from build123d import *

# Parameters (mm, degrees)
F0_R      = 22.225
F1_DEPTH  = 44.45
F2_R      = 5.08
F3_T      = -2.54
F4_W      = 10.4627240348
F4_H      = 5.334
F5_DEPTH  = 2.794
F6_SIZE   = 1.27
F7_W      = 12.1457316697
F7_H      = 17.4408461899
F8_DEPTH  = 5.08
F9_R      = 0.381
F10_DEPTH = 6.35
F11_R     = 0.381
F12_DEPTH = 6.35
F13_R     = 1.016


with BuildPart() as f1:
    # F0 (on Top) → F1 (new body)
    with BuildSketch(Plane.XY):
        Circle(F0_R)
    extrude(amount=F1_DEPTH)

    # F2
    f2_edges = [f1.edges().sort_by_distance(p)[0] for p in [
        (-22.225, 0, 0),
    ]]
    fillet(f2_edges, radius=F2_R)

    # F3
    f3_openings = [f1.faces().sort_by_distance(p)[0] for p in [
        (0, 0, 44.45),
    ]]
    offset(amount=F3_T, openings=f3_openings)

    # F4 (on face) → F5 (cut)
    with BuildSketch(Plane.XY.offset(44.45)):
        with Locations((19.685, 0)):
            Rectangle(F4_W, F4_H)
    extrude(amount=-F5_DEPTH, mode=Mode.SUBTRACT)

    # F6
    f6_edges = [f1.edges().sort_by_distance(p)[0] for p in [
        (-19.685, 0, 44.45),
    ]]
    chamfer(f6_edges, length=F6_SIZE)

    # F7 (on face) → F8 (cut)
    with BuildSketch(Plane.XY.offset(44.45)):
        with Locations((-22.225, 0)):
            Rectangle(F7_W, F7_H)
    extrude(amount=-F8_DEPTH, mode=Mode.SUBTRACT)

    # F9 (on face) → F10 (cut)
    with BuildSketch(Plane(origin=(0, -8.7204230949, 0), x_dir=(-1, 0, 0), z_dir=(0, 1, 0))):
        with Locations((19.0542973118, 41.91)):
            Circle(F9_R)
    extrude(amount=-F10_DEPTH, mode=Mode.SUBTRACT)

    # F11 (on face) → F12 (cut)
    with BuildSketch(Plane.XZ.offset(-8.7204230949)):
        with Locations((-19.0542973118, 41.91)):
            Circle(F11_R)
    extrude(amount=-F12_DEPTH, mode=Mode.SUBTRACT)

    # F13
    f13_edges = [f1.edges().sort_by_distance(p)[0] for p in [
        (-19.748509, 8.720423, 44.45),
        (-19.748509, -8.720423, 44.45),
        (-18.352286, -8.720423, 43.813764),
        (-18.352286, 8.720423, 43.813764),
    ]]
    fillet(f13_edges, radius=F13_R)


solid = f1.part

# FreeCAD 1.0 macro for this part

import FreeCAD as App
import Part
import Sketcher

V = App.Vector
Q = App.Units.Quantity


def edges_at(feature, points):
    """Names of the edges that pass closest to the given points."""
    edges = feature.Shape.Edges
    near = lambda p: min(range(len(edges)), key=lambda i: edges[i].distToShape(Part.Vertex(*p))[0])
    return sorted({f"Edge{near(p) + 1}" for p in points})


def faces_at(feature, points):
    """Names of the faces that lie closest to the given points."""
    faces = feature.Shape.Faces
    near = lambda p: min(range(len(faces)), key=lambda i: faces[i].distToShape(Part.Vertex(*p))[0])
    return sorted({f"Face{near(p) + 1}" for p in points})

doc = App.newDocument("Part")
body = doc.addObject("PartDesign::Body", "Body")

# Sketch on XY plane
sketch1 = body.newObject("Sketcher::SketchObject", "Sketch")
sketch1.AttachmentSupport = (doc.getObject("XY_Plane"), [""])
sketch1.MapMode = "FlatFace"
sketch1.addGeometry(Part.Circle(V(0, 0, 0), V(0, 0, 1), 22), False)
sketch1.addConstraint([
    Sketcher.Constraint("Coincident", 0, 3, -1, 1),
    Sketcher.Constraint("Diameter", 0, Q("1.75 in")),
])
pad1 = body.newObject("PartDesign::Pad", "Pad")
pad1.Profile = sketch1
pad1.Length = Q("1.75 in")
doc.recompute()

fillet = body.newObject("PartDesign::Fillet", "Fillet")
fillet.Base = (pad1, edges_at(pad1, [(-22.225, 0, 0)]))
fillet.Radius = Q("0.2 in")
doc.recompute()

thickness = body.newObject("PartDesign::Thickness", "Thickness")
thickness.Base = (fillet, faces_at(fillet, [(0, 0, 44.45)]))
thickness.Value = Q("0.1 in")
thickness.Reversed = True
thickness.Join = "Arc"

# Sketch on XY plane
sketch2 = body.newObject("Sketcher::SketchObject", "Sketch001")
sketch2.AttachmentSupport = (doc.getObject("XY_Plane"), [""])
sketch2.MapMode = "FlatFace"
sketch2.AttachmentOffset = App.Placement(V(0, 0, 1.75 * 25.4), App.Rotation())
sketch2.addGeometry([
    Part.LineSegment(V(14, 3, 0), V(14, -3, 0)),
    Part.LineSegment(V(14, -3, 0), V(25, -3, 0)),
    Part.LineSegment(V(25, -3, 0), V(25, 3, 0)),
    Part.LineSegment(V(25, 3, 0), V(14, 3, 0)),
], False)
sketch2.addConstraint([
    Sketcher.Constraint("Coincident", 0, 2, 1, 1),
    Sketcher.Constraint("Coincident", 1, 2, 2, 1),
    Sketcher.Constraint("Coincident", 2, 2, 3, 1),
    Sketcher.Constraint("Coincident", 3, 2, 0, 1),
    Sketcher.Constraint("Vertical", 0),
    Sketcher.Constraint("Horizontal", 1),
    Sketcher.Constraint("Vertical", 2),
    Sketcher.Constraint("Horizontal", 3),
    Sketcher.Constraint("DistanceY", 0, 2, 0, 1, Q("0.21 in")),
    Sketcher.Constraint("DistanceY", 0, 2, -1, 1, Q("0.105 in")),
    Sketcher.Constraint("DistanceX", 1, 1, 1, 2, 10.462724),
    Sketcher.Constraint("DistanceX", -1, 1, 0, 2, 14.453638),
])
pocket1 = body.newObject("PartDesign::Pocket", "Pocket")
pocket1.Profile = sketch2
pocket1.Length = Q("0.11 in")
doc.recompute()

chamfer = body.newObject("PartDesign::Chamfer", "Chamfer")
chamfer.Base = (pocket1, edges_at(pocket1, [(-19.685, 0, 44.45)]))
chamfer.Size = Q("0.05 in")

# Sketch on XY plane
sketch3 = body.newObject("Sketcher::SketchObject", "Sketch002")
sketch3.AttachmentSupport = (doc.getObject("XY_Plane"), [""])
sketch3.MapMode = "FlatFace"
sketch3.AttachmentOffset = App.Placement(V(0, 0, 1.75 * 25.4), App.Rotation())
sketch3.addGeometry([
    Part.LineSegment(V(-28, 9, 0), V(-28, -9, 0)),
    Part.LineSegment(V(-28, -9, 0), V(-16, -9, 0)),
    Part.LineSegment(V(-16, -9, 0), V(-16, 9, 0)),
    Part.LineSegment(V(-16, 9, 0), V(-28, 9, 0)),
], False)
sketch3.addConstraint([
    Sketcher.Constraint("Coincident", 0, 2, 1, 1),
    Sketcher.Constraint("Coincident", 1, 2, 2, 1),
    Sketcher.Constraint("Coincident", 2, 2, 3, 1),
    Sketcher.Constraint("Coincident", 3, 2, 0, 1),
    Sketcher.Constraint("Vertical", 0),
    Sketcher.Constraint("Horizontal", 1),
    Sketcher.Constraint("Vertical", 2),
    Sketcher.Constraint("Horizontal", 3),
    Sketcher.Constraint("DistanceX", 1, 1, 1, 2, 12.145732),
    Sketcher.Constraint("DistanceY", 0, 2, 0, 1, 17.440846),
    Sketcher.Constraint("DistanceX", 0, 2, -1, 1, 28.297866),
    Sketcher.Constraint("DistanceY", 0, 2, -1, 1, 8.720423),
])
pocket2 = body.newObject("PartDesign::Pocket", "Pocket001")
pocket2.Profile = sketch3
pocket2.Length = Q("0.2 in")

# Sketch on XZ plane
sketch4 = body.newObject("Sketcher::SketchObject", "Sketch003")
sketch4.AttachmentSupport = (doc.getObject("XZ_Plane"), [""])
sketch4.MapMode = "FlatFace"
sketch4.AttachmentOffset = App.Placement(V(0, 0, 8.720423), App.Rotation())
sketch4.addGeometry(Part.Circle(V(-19.05, 41.91, 0), V(0, 0, 1), 0.38), False)
sketch4.addConstraint([
    Sketcher.Constraint("Diameter", 0, Q("0.03 in")),
    Sketcher.Constraint("DistanceY", -1, 1, 0, 3, Q("1.65 in")),
    Sketcher.Constraint("DistanceX", 0, 3, -1, 1, 19.054297),
])
pocket3 = body.newObject("PartDesign::Pocket", "Pocket002")
pocket3.Profile = sketch4
pocket3.Length = Q("0.25 in")
pocket3.Reversed = True

# Sketch on XZ plane
sketch5 = body.newObject("Sketcher::SketchObject", "Sketch004")
sketch5.AttachmentSupport = (doc.getObject("XZ_Plane"), [""])
sketch5.MapMode = "FlatFace"
sketch5.AttachmentOffset = App.Placement(V(0, 0, -8.720423), App.Rotation())
sketch5.addGeometry(Part.Circle(V(-19.05, 41.91, 0), V(0, 0, 1), 0.38), False)
sketch5.addConstraint([
    Sketcher.Constraint("Diameter", 0, Q("0.03 in")),
    Sketcher.Constraint("DistanceY", -1, 1, 0, 3, Q("1.65 in")),
    Sketcher.Constraint("DistanceX", 0, 3, -1, 1, 19.054297),
])
pocket4 = body.newObject("PartDesign::Pocket", "Pocket003")
pocket4.Profile = sketch5
pocket4.Length = Q("0.25 in")
doc.recompute()

fillet2 = body.newObject("PartDesign::Fillet", "Fillet001")
fillet2.Base = (pocket4, edges_at(pocket4, [
    (-19.749, 8.72, 44.45),
    (-19.749, -8.72, 44.45),
    (-18.352, -8.72, 43.814),
    (-18.352, 8.72, 43.814),
]))
fillet2.Radius = Q("0.04 in")

doc.recompute()
